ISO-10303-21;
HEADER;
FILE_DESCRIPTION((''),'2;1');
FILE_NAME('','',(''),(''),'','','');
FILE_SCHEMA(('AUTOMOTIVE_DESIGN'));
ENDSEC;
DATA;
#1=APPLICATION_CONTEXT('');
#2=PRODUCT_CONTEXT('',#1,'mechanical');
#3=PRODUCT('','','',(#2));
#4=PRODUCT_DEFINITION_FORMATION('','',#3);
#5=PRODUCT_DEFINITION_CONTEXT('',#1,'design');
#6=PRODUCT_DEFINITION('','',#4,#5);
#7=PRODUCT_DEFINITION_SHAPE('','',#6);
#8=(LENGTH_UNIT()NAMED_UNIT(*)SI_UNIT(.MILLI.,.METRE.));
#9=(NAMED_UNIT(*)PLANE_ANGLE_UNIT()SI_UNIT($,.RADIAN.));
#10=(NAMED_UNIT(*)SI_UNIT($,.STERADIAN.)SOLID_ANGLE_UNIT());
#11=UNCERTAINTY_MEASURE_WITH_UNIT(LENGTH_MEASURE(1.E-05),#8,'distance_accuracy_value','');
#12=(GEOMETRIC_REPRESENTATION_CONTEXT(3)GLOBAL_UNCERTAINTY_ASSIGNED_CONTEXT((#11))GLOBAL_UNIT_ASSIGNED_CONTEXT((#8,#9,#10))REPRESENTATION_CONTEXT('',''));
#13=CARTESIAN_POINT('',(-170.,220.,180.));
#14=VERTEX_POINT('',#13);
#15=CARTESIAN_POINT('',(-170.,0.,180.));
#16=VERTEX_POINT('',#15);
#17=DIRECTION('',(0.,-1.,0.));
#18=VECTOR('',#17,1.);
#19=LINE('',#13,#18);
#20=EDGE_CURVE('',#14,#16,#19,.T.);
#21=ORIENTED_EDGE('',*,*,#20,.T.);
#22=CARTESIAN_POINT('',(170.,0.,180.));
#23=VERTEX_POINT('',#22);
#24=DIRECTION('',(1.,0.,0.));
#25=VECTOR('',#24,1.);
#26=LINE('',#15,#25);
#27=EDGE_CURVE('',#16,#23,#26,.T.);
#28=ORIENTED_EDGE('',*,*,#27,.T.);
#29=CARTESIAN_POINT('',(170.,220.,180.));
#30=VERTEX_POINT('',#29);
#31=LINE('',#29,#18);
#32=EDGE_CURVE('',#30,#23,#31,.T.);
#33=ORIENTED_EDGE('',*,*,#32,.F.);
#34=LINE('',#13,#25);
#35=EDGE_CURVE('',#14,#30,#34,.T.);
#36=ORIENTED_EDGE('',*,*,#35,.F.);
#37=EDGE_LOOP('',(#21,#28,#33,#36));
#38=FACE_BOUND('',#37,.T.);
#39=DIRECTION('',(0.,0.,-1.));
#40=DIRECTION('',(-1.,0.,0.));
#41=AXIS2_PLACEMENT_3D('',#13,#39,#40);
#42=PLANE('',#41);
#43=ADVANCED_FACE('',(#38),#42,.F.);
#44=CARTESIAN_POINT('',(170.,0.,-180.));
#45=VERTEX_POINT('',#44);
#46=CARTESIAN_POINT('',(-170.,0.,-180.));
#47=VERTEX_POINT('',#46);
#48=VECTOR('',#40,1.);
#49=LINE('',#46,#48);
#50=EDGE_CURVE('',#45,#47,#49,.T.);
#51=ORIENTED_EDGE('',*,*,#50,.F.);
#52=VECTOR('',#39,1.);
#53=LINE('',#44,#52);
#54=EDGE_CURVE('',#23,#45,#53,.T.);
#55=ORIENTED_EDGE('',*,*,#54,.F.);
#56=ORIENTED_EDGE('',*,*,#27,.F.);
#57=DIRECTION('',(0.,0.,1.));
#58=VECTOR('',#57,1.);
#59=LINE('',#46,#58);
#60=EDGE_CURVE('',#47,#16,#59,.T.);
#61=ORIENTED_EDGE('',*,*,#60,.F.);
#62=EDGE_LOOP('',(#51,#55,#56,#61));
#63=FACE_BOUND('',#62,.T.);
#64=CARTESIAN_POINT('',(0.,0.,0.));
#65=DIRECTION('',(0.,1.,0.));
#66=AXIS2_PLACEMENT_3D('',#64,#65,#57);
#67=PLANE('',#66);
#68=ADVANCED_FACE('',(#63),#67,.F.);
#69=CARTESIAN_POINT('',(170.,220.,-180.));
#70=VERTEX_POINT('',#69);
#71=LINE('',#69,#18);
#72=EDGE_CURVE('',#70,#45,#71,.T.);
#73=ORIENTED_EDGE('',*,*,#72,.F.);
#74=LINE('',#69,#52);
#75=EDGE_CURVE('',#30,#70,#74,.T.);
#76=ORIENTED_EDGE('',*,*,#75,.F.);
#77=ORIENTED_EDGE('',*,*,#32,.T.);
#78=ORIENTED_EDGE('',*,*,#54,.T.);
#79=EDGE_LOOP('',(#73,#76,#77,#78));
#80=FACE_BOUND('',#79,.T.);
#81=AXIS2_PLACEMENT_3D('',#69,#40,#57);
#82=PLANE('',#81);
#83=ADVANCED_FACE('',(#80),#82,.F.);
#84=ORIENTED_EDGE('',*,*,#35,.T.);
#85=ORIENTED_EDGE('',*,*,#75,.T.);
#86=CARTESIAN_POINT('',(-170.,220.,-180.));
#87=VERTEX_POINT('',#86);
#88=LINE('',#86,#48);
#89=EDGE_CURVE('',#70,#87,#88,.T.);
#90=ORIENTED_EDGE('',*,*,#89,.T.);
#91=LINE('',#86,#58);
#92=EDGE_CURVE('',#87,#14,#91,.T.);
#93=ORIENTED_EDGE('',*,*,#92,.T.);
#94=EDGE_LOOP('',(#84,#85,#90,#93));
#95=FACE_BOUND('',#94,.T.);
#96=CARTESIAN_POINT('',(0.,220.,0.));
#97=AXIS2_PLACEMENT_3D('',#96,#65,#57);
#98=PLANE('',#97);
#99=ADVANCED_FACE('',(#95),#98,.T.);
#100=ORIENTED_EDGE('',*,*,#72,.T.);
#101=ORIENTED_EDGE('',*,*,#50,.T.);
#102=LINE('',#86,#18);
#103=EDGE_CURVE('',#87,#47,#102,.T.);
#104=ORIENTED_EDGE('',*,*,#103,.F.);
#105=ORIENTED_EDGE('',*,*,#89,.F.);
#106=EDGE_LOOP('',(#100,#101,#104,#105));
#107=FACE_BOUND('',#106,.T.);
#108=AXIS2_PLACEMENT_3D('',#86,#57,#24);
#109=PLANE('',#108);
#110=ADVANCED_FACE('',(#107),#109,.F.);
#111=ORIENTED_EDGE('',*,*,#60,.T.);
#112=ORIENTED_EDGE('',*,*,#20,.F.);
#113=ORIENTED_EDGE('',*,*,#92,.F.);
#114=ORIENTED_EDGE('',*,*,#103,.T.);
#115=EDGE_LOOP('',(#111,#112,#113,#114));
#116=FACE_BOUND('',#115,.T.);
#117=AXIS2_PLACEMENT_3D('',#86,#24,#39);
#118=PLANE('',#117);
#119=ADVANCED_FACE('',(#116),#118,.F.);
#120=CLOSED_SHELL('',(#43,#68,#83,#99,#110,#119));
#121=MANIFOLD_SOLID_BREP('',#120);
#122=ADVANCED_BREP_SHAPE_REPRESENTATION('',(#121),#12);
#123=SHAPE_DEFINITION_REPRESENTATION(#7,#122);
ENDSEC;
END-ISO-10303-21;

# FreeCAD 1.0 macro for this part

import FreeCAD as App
import Part
import Sketcher
from FreeCAD import Vector
Q = App.Units.Quantity


def add_polygon(sketch, points):
    """Adds a closed chain of lines whose ends are joined by coincident constraints."""
    first, n = sketch.GeometryCount, len(points)
    for a, b in zip(points, points[1:] + points[:1]):
        sketch.addGeometry(Part.LineSegment(App.Vector(*a, 0), App.Vector(*b, 0)), False)
    for i in range(n):
        sketch.addConstraint(Sketcher.Constraint("Coincident", first + i, 2, first + (i + 1) % n, 1))

doc = App.newDocument("Part")
params = doc.addObject("Spreadsheet::Sheet", "Params")
for row, (alias, value) in enumerate([
    ("sketch1_width", "340 mm"),
    ("sketch1_height", "360 mm"),
    ("pad1_length", "220 mm"),
], start=1):
    params.set(f"A{row}", alias)
    params.set(f"B{row}", "=" + value)
    params.setAlias(f"B{row}", alias)

body = doc.addObject("PartDesign::Body", "Body")

# Sketch on XZ plane
sketch1 = doc.addObject("Sketcher::SketchObject", "Sketch")
body.addObject(sketch1)
sketch1.AttachmentSupport = (doc.XZ_Plane, [""])
sketch1.MapMode = "FlatFace"
add_polygon(sketch1, [(-170, -180), (-170, 180), (170, 180), (170, -180)])  # lines 0-3
sketch1.addConstraint(Sketcher.Constraint("Vertical", 0))
sketch1.addConstraint(Sketcher.Constraint("Horizontal", 1))
sketch1.addConstraint(Sketcher.Constraint("Vertical", 2))
sketch1.addConstraint(Sketcher.Constraint("Horizontal", 3))
sketch1.addConstraint(Sketcher.Constraint("Symmetric", 0, 2, 2, 2, -1, 1))
sketch1.addConstraint(Sketcher.Constraint("DistanceX", 1, 1, 1, 2, Q("340 mm")))
sketch1.addConstraint(Sketcher.Constraint("DistanceY", 0, 1, 0, 2, Q("360 mm")))
sketch1.setExpression("Constraints[9]", "Params.sketch1_width")
sketch1.setExpression("Constraints[10]", "Params.sketch1_height")
pad1 = doc.addObject("PartDesign::Pad", "Pad")
body.addObject(pad1)
pad1.Profile = sketch1
pad1.setExpression("Length", "Params.pad1_length")
pad1.Reversed = True

doc.recompute()
